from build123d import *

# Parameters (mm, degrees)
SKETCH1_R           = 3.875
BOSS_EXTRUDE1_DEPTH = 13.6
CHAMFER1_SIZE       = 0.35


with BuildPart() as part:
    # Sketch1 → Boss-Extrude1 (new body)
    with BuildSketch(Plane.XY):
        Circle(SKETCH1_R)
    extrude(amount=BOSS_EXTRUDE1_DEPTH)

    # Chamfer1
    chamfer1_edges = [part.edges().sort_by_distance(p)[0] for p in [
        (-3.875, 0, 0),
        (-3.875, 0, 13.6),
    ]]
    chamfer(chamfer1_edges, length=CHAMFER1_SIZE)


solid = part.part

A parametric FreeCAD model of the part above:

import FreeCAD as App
import Part
import Sketcher
Q = App.Units.Quantity


def edges_at(feature, points):
    """Names of the edges that pass closest to the given points."""
    edges = feature.Shape.Edges
    near = lambda p: min(range(len(edges)), key=lambda i: edges[i].distToShape(Part.Vertex(*p))[0])
    return sorted({f"Edge{near(p) + 1}" for p in points})

doc = App.newDocument("Part")
body = doc.addObject("PartDesign::Body", "Body")

# Sketch on XY plane
sketch1 = body.newObject("Sketcher::SketchObject", "Sketch")
sketch1.AttachmentSupport = (doc.getObject("XY_Plane"), [""])
sketch1.MapMode = "FlatFace"
sketch1.addGeometry(Part.Circle(App.Vector(0, 0, 0), App.Vector(0, 0, 1), 3.875), False)
sketch1.addConstraint(Sketcher.Constraint("Coincident", 0, 3, -1, 1))
sketch1.addConstraint(Sketcher.Constraint("Diameter", 0, Q("7.75 mm")))
pad1 = body.newObject("PartDesign::Pad", "Pad")
pad1.Profile = sketch1
pad1.Length = 13.6
doc.recompute()

chamfer = body.newObject("PartDesign::Chamfer", "Chamfer")
chamfer.Base = (pad1, edges_at(pad1, [(-3.875, 0, 0), (-3.875, 0, 13.6)]))
chamfer.Size = 0.35

doc.recompute()
